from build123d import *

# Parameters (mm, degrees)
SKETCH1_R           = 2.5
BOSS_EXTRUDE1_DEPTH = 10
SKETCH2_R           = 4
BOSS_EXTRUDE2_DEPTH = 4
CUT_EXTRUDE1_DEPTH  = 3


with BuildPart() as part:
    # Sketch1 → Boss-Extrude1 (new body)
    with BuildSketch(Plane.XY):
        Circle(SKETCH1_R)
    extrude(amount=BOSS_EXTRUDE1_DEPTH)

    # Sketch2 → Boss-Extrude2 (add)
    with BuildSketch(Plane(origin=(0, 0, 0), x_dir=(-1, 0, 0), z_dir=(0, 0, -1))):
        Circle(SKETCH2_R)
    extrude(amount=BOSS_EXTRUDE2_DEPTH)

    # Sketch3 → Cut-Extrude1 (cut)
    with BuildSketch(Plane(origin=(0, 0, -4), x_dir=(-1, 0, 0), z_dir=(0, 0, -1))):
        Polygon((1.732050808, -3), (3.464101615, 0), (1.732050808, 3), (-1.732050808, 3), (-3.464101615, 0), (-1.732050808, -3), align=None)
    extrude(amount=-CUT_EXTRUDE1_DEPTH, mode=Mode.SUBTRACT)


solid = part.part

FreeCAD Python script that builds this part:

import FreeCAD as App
import Part
import Sketcher

V = App.Vector
Q = App.Units.Quantity

doc = App.newDocument("Part")
body = doc.addObject("PartDesign::Body", "Body")

# Sketch on XY plane
sketch1 = doc.addObject("Sketcher::SketchObject", "Sketch")
body.addObject(sketch1)
sketch1.AttachmentSupport = (doc.XY_Plane, [""])
sketch1.MapMode = "FlatFace"
sketch1.addGeometry(Part.Circle(V(0, 0, 0), V(0, 0, 1), 2.5), False)
sketch1.addConstraint([
    Sketcher.Constraint("Coincident", 0, 3, -1, 1),
    Sketcher.Constraint("Diameter", 0, 5.0),
])
pad1 = doc.addObject("PartDesign::Pad", "Pad")
body.addObject(pad1)
pad1.Profile = sketch1
pad1.Length = 10

# Sketch on XY plane
sketch2 = doc.addObject("Sketcher::SketchObject", "Sketch001")
body.addObject(sketch2)
sketch2.AttachmentSupport = (doc.XY_Plane, [""])
sketch2.MapMode = "FlatFace"
sketch2.addGeometry(Part.Circle(V(0, 0, 0), V(0, 0, 1), 4), False)
sketch2.addConstraint([
    Sketcher.Constraint("Coincident", 0, 3, -1, 1),
    Sketcher.Constraint("Diameter", 0, 8.0),
])
pad2 = doc.addObject("PartDesign::Pad", "Pad001")
body.addObject(pad2)
pad2.Profile = sketch2
pad2.Length = 4
pad2.Reversed = True

# Sketch on XY plane
sketch3 = doc.addObject("Sketcher::SketchObject", "Sketch002")
body.addObject(sketch3)
sketch3.AttachmentSupport = (doc.XY_Plane, [""])
sketch3.MapMode = "FlatFace"
sketch3.AttachmentOffset = App.Placement(V(0, 0, -4), App.Rotation())
sketch3.addGeometry([
    Part.LineSegment(V(-1.732051, -3, 0), V(-3.464102, 0, 0)),  # 0
    Part.LineSegment(V(-3.464102, 0, 0), V(-1.732051, 3, 0)),  # 1
    Part.LineSegment(V(-1.732051, 3, 0), V(1.732051, 3, 0)),  # 2
    Part.LineSegment(V(1.732051, 3, 0), V(3.464102, 0, 0)),  # 3
    Part.LineSegment(V(3.464102, 0, 0), V(1.732051, -3, 0)),  # 4
    Part.LineSegment(V(1.732051, -3, 0), V(-1.732051, -3, 0)),  # 5
], False)
sketch3.addConstraint([
    Sketcher.Constraint("Coincident", 0, 2, 1, 1),
    Sketcher.Constraint("Coincident", 1, 2, 2, 1),
    Sketcher.Constraint("Coincident", 2, 2, 3, 1),
    Sketcher.Constraint("Coincident", 3, 2, 4, 1),
    Sketcher.Constraint("Coincident", 4, 2, 5, 1),
    Sketcher.Constraint("Coincident", 5, 2, 0, 1),
    Sketcher.Constraint("Horizontal", 2),
    Sketcher.Constraint("Horizontal", 5),
    Sketcher.Constraint("Symmetric", 0, 2, 3, 2, -1, 1),
    Sketcher.Constraint("Symmetric", 1, 2, 4, 2, -1, 1),
    Sketcher.Constraint("PointOnObject", 0, 2, -1),
    Sketcher.Constraint("Parallel", 0, 3),
    Sketcher.Constraint("Vertical", 2, 2, 4, 2),
    Sketcher.Constraint("Angle", 0, Q("120 deg")),
    Sketcher.Constraint("DistanceY", -1, 1, 1, 2, 3.0),
    Sketcher.Constraint("DistanceX", 2, 1, 2, 2, 3.464102),
])
pocket1 = doc.addObject("PartDesign::Pocket", "Pocket")
body.addObject(pocket1)
pocket1.Profile = sketch3
pocket1.Length = 3
pocket1.Reversed = True

doc.recompute()
